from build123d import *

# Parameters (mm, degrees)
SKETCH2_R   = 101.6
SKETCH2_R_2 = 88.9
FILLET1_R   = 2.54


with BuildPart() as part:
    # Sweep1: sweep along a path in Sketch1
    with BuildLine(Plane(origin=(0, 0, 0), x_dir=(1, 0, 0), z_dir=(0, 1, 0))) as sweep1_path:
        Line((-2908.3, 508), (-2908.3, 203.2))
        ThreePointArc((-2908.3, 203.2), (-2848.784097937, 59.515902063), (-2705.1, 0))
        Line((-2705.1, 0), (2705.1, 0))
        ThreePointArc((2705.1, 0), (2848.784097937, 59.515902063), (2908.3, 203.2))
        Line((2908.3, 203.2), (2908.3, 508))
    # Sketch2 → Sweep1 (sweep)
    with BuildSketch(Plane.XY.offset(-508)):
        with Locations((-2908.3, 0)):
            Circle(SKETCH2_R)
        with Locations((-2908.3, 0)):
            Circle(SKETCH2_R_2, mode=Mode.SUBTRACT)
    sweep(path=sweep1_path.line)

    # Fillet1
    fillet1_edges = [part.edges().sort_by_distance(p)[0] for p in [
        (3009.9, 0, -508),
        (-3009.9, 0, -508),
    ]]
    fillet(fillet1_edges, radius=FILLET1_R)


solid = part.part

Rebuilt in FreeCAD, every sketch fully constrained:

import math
import FreeCAD as App
import Part
import Sketcher

V = App.Vector
Q = App.Units.Quantity


def edges_at(feature, points):
    """Names of the edges that pass closest to the given points."""
    edges = feature.Shape.Edges
    near = lambda p: min(range(len(edges)), key=lambda i: edges[i].distToShape(Part.Vertex(*p))[0])
    return sorted({f"Edge{near(p) + 1}" for p in points})

doc = App.newDocument("Part")
body = doc.addObject("PartDesign::Body", "Body")

# Sketch on XY plane
sketch1 = body.newObject("Sketcher::SketchObject", "Sketch")
sketch1.AttachmentSupport = (doc.getObject("XY_Plane"), [""])
sketch1.MapMode = "FlatFace"
sketch1.AttachmentOffset = App.Placement(V(0, 0, -20 * 25.4), App.Rotation())
sketch1.addGeometry(Part.Circle(V(-2908, 0, 0), V(0, 0, 1), 102), False)
sketch1.addGeometry(Part.Circle(V(-2908, 0, 0), V(0, 0, 1), 89), False)
sketch1.addConstraint(Sketcher.Constraint("Coincident", 1, 3, 0, 3))
sketch1.addConstraint(Sketcher.Constraint("PointOnObject", 0, 3, -1))
sketch1.addConstraint(Sketcher.Constraint("Diameter", 0, Q("8 in")))
sketch1.addConstraint(Sketcher.Constraint("Diameter", 1, Q("7 in")))
sketch1.addConstraint(Sketcher.Constraint("DistanceX", 0, 3, -1, 1, Q("114.5 in")))

# Sketch on XZ plane
sketch2 = body.newObject("Sketcher::SketchObject", "Sketch001")
sketch2.AttachmentSupport = (doc.getObject("XZ_Plane"), [""])
sketch2.MapMode = "FlatFace"
sketch2.addGeometry(Part.LineSegment(V(-2908, -508, 0), V(-2908, -203, 0)), False)
sketch2.addGeometry(Part.ArcOfCircle(Part.Circle(V(-2705, -203, 0), V(0, 0, 1), 203), math.radians(90), math.radians(180)), False)
sketch2.addGeometry(Part.LineSegment(V(-2705, 0, 0), V(2705, 0, 0)), False)
sketch2.addGeometry(Part.ArcOfCircle(Part.Circle(V(2705, -203, 0), V(0, 0, 1), 203), math.radians(0), math.radians(90)), False)
sketch2.addGeometry(Part.LineSegment(V(2908, -203, 0), V(2908, -508, 0)), False)
sketch2.addConstraint(Sketcher.Constraint("Tangent", 0, 2, 1, 2))
sketch2.addConstraint(Sketcher.Constraint("Tangent", 1, 1, 2, 1))
sketch2.addConstraint(Sketcher.Constraint("Tangent", 2, 2, 3, 2))
sketch2.addConstraint(Sketcher.Constraint("Tangent", 3, 1, 4, 1))
sketch2.addConstraint(Sketcher.Constraint("Vertical", 0))
sketch2.addConstraint(Sketcher.Constraint("Horizontal", 2))
sketch2.addConstraint(Sketcher.Constraint("Vertical", 4))
sketch2.addConstraint(Sketcher.Constraint("Equal", 1, 3))
sketch2.addConstraint(Sketcher.Constraint("Symmetric", 1, 1, 2, 2, -1, 1))
sketch2.addConstraint(Sketcher.Constraint("Horizontal", 0, 1, 4, 2))
sketch2.addConstraint(Sketcher.Constraint("Radius", 1, Q("8 in")))
sketch2.addConstraint(Sketcher.Constraint("DistanceX", 2, 1, 2, 2, Q("213 in")))
sketch2.addConstraint(Sketcher.Constraint("DistanceY", 0, 1, 0, 2, Q("12 in")))
doc.recompute()

additivepipe = body.newObject("PartDesign::AdditivePipe", "AdditivePipe")
additivepipe.Profile = sketch1
additivepipe.Spine = (sketch2, ["Edge1", "Edge2", "Edge3", "Edge4", "Edge5"])
doc.recompute()

fillet = body.newObject("PartDesign::Fillet", "Fillet")
fillet.Base = (additivepipe, edges_at(additivepipe, [(3009.9, 0, -508), (-3009.9, 0, -508)]))
fillet.Radius = Q("0.1 in")

doc.recompute()
